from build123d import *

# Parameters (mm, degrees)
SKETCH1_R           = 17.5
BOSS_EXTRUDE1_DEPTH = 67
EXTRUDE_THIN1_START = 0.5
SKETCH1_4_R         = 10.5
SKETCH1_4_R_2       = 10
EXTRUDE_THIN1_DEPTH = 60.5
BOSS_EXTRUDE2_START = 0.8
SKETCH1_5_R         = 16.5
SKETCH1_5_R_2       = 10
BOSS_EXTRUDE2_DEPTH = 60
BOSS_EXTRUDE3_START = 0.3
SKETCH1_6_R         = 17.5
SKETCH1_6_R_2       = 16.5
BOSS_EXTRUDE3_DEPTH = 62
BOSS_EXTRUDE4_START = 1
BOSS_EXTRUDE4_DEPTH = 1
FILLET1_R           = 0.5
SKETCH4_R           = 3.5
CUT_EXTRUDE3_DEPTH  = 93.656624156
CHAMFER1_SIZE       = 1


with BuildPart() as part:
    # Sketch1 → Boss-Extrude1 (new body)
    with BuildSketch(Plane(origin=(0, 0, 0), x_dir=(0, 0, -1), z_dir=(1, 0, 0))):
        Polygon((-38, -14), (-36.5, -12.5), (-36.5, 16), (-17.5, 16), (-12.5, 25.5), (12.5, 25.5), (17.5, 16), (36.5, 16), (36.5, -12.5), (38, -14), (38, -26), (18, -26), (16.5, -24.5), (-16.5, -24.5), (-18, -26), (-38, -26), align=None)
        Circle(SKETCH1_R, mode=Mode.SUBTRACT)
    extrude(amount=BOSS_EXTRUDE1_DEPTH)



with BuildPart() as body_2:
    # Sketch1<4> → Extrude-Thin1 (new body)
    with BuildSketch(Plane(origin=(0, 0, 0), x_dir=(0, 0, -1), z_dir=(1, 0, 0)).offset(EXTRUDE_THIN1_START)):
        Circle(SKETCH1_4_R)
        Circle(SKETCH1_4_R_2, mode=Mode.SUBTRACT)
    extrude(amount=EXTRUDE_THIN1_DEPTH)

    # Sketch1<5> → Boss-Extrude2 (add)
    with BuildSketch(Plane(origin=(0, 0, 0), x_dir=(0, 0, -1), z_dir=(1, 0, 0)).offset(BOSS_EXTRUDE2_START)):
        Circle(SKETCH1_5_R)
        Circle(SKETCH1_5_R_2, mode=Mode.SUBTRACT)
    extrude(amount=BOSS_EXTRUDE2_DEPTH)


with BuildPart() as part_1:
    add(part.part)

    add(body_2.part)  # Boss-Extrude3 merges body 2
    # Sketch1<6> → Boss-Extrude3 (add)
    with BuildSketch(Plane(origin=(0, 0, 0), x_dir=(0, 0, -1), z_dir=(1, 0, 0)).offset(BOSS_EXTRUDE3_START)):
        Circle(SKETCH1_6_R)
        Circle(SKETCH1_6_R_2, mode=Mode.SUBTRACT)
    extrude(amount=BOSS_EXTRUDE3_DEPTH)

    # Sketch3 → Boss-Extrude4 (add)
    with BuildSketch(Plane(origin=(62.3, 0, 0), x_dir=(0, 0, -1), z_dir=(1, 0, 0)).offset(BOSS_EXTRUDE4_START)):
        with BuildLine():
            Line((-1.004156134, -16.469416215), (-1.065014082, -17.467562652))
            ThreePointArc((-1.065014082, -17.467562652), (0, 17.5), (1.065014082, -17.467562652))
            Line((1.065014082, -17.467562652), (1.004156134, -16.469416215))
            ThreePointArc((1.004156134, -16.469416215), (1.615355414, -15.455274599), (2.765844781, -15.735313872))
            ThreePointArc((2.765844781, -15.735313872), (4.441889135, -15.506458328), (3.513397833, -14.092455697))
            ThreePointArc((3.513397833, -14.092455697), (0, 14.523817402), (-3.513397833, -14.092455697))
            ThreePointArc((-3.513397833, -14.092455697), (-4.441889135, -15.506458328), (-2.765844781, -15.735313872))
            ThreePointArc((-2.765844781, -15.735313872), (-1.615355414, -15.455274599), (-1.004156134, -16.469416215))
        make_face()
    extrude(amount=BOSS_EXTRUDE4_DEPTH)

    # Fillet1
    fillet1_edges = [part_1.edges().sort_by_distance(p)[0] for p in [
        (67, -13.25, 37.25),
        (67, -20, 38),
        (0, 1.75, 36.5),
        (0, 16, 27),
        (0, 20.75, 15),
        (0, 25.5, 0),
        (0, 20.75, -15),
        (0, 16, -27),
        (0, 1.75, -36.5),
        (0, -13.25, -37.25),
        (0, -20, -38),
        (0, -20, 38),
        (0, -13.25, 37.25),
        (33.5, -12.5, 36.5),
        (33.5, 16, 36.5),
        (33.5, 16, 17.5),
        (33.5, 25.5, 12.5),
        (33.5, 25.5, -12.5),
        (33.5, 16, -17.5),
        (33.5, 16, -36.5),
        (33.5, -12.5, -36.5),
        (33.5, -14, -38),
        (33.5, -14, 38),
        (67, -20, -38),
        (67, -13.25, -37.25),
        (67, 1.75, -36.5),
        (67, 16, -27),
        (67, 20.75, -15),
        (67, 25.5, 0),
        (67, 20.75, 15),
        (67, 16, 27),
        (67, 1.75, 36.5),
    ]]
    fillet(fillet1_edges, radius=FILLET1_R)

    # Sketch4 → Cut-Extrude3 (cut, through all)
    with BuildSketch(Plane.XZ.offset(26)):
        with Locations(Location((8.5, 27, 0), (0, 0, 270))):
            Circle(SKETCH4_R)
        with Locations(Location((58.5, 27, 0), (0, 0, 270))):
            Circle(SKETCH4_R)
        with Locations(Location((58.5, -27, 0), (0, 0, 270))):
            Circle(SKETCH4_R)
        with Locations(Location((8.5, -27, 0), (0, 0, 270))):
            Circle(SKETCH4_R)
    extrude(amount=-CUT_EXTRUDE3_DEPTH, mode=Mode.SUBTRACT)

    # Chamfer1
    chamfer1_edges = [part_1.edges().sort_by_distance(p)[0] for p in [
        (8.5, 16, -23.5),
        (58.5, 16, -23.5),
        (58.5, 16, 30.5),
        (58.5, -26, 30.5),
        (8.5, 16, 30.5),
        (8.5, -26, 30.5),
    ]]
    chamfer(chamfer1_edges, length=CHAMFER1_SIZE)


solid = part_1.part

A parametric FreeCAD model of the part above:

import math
import FreeCAD as App
import Part
import Sketcher
from FreeCAD import Vector


def edges_at(feature, points):
    """Names of the edges that pass closest to the given points."""
    edges = feature.Shape.Edges
    near = lambda p: min(range(len(edges)), key=lambda i: edges[i].distToShape(Part.Vertex(*p))[0])
    return sorted({f"Edge{near(p) + 1}" for p in points})


def add_polygon(sketch, points):
    """Adds a closed chain of lines whose ends are joined by coincident constraints."""
    first, n = sketch.GeometryCount, len(points)
    for a, b in zip(points, points[1:] + points[:1]):
        sketch.addGeometry(Part.LineSegment(App.Vector(*a, 0), App.Vector(*b, 0)), False)
    for i in range(n):
        sketch.addConstraint(Sketcher.Constraint("Coincident", first + i, 2, first + (i + 1) % n, 1))

doc = App.newDocument("Part")
body = doc.addObject("PartDesign::Body", "Body")

sketch1 = body.newObject("Sketcher::SketchObject", "Sketch")
sketch1.AttachmentSupport = (doc.getObject("YZ_Plane"), [""])
sketch1.MapMode = "FlatFace"
add_polygon(sketch1, [(-12.5, 36.5), (-14, 38), (-26, 38), (-26, 18), (-24.5, 16.5), (-24.5, -16.5), (-26, -18), (-26, -38), (-14, -38), (-12.5, -36.5), (16, -36.5), (16, -17.5), (25.5, -12.5), (25.5, 12.5), (16, 17.5), (16, 36.5)])
sketch1.addGeometry(Part.Circle(Vector(0, 0, 0), Vector(0, 0, 1), 17.5), False)
sketch1.addConstraint([
    Sketcher.Constraint("Horizontal", 1),
    Sketcher.Constraint("Vertical", 2),
    Sketcher.Constraint("Vertical", 4),
    Sketcher.Constraint("Vertical", 6),
    Sketcher.Constraint("Horizontal", 7),
    Sketcher.Constraint("Horizontal", 9),
    Sketcher.Constraint("Vertical", 10),
    Sketcher.Constraint("Vertical", 12),
    Sketcher.Constraint("Vertical", 14),
    Sketcher.Constraint("Horizontal", 15),
    Sketcher.Constraint("Coincident", 16, 3, -1, 1),
    Sketcher.Constraint("Symmetric", 2, 2, 5, 2, -1),
    Sketcher.Constraint("Symmetric", 0, 2, 7, 2, -1),
    Sketcher.Constraint("Symmetric", 10, 2, 13, 2, -1),
    Sketcher.Constraint("Symmetric", 8, 2, 15, 2, -1),
    Sketcher.Constraint("Parallel", 0, 3),
    Sketcher.Constraint("Perpendicular", 3, 5),
    Sketcher.Constraint("Parallel", 5, 8),
    Sketcher.Constraint("Equal", 0, 3),
    Sketcher.Constraint("Equal", 11, 13),
    Sketcher.Constraint("Diameter", 16, 35.0),
    Sketcher.Constraint("DistanceX", 1, 2, 1, 1, 12.0),
    Sketcher.Constraint("DistanceY", 2, 2, 2, 1, 20.0),
    Sketcher.Constraint("DistanceY", 4, 2, 4, 1, 33.0),
    Sketcher.Constraint("DistanceY", 10, 1, 10, 2, 19.0),
    Sketcher.Constraint("DistanceY", 12, 1, 12, 2, 25.0),
    Sketcher.Constraint("DistanceX", 9, 1, 9, 2, 28.5),
    Sketcher.Constraint("DistanceX", 0, 2, -1, 1, 14.0),
    Sketcher.Constraint("DistanceY", -1, 1, 0, 2, 38.0),
    Sketcher.Constraint("DistanceX", 8, 2, 11, 2, 38.0),
])
pad1 = body.newObject("PartDesign::Pad", "Pad")
pad1.Profile = sketch1
pad1.Length = 67
body2 = doc.addObject("PartDesign::Body", "Body001")

sketch2 = body2.newObject("Sketcher::SketchObject", "Sketch001")
sketch2.AttachmentSupport = (doc.getObject("YZ_Plane001"), [""])
sketch2.MapMode = "FlatFace"
sketch2.AttachmentOffset = App.Placement(Vector(0, 0, 0.5), App.Rotation())
sketch2.addGeometry([
    Part.Circle(Vector(0, 0, 0), Vector(0, 0, 1), 10),
    Part.Circle(Vector(0, 0, 0), Vector(0, 0, 1), 10),
], False)
sketch2.addConstraint([
    Sketcher.Constraint("Coincident", 0, 3, -1, 1),
    Sketcher.Constraint("Coincident", 1, 3, -1, 1),
    Sketcher.Constraint("Diameter", 0, 21.0),
    Sketcher.Constraint("Diameter", 1, 20.0),
])
pad2 = body2.newObject("PartDesign::Pad", "Pad001")
pad2.Profile = sketch2
pad2.Length = 60.5

sketch3 = body2.newObject("Sketcher::SketchObject", "Sketch002")
sketch3.AttachmentSupport = (doc.getObject("YZ_Plane001"), [""])
sketch3.MapMode = "FlatFace"
sketch3.AttachmentOffset = App.Placement(Vector(0, 0, 0.8), App.Rotation())
sketch3.addGeometry([
    Part.Circle(Vector(0, 0, 0), Vector(0, 0, 1), 16),
    Part.Circle(Vector(0, 0, 0), Vector(0, 0, 1), 10),
], False)
sketch3.addConstraint([
    Sketcher.Constraint("Coincident", 0, 3, -1, 1),
    Sketcher.Constraint("Coincident", 1, 3, -1, 1),
    Sketcher.Constraint("Diameter", 0, 33.0),
    Sketcher.Constraint("Diameter", 1, 20.0),
])
pad3 = body2.newObject("PartDesign::Pad", "Pad002")
pad3.Profile = sketch3
pad3.Length = 60
body.AllowCompound = True
doc.recompute()

boolean = body.newObject("PartDesign::Boolean", "Boolean")
boolean.Type = "Fuse"
boolean.addObjects([body2])

sketch4 = body.newObject("Sketcher::SketchObject", "Sketch003")
sketch4.AttachmentSupport = (doc.getObject("YZ_Plane"), [""])
sketch4.MapMode = "FlatFace"
sketch4.AttachmentOffset = App.Placement(Vector(0, 0, 0.3), App.Rotation())
sketch4.addGeometry([
    Part.Circle(Vector(0, 0, 0), Vector(0, 0, 1), 18),
    Part.Circle(Vector(0, 0, 0), Vector(0, 0, 1), 16),
], False)
sketch4.addConstraint([
    Sketcher.Constraint("Coincident", 0, 3, -1, 1),
    Sketcher.Constraint("Coincident", 1, 3, -1, 1),
    Sketcher.Constraint("Diameter", 0, 35.0),
    Sketcher.Constraint("Diameter", 1, 33.0),
])
pad4 = body.newObject("PartDesign::Pad", "Pad003")
pad4.Profile = sketch4
pad4.Length = 62

sketch5 = body.newObject("Sketcher::SketchObject", "Sketch004")
sketch5.AttachmentSupport = (doc.getObject("YZ_Plane"), [""])
sketch5.MapMode = "FlatFace"
sketch5.AttachmentOffset = App.Placement(Vector(0, 0, 63.3), App.Rotation())
sketch5.addGeometry([
    Part.LineSegment(Vector(-17.5, 1.1, 0), Vector(-16.5, 1, 0)),
    Part.ArcOfCircle(Part.Circle(Vector(-16.4, 2, 0), Vector(0, 0, 1), 1), math.radians(-95), math.radians(50)),
    Part.ArcOfCircle(Part.Circle(Vector(-15.1, 3.5, 0), Vector(0, 0, 1), 1), math.radians(-1), math.radians(230)),
    Part.ArcOfCircle(Part.Circle(Vector(0, 0, 0), Vector(0, 0, 1), 14.5), math.radians(-166), math.radians(166)),
    Part.ArcOfCircle(Part.Circle(Vector(-15.1, -3.5, 0), Vector(0, 0, 1), 1), math.radians(130), math.radians(361)),
    Part.ArcOfCircle(Part.Circle(Vector(-16.4, -2, 0), Vector(0, 0, 1), 1), math.radians(-50), math.radians(95)),
    Part.LineSegment(Vector(-16.5, -1, 0), Vector(-17.5, -1.1, 0)),
    Part.ArcOfCircle(Part.Circle(Vector(0, 0, 0), Vector(0, 0, 1), 17.5), math.radians(-177), math.radians(177)),
], False)
sketch5.addConstraint([
    Sketcher.Constraint("Coincident", 0, 2, 1, 1),
    Sketcher.Constraint("Tangent", 1, 2, 2, 2),
    Sketcher.Constraint("Coincident", 2, 1, 3, 2),
    Sketcher.Constraint("Coincident", 3, 1, 4, 2),
    Sketcher.Constraint("Tangent", 4, 1, 5, 1),
    Sketcher.Constraint("Coincident", 5, 2, 6, 1),
    Sketcher.Constraint("Coincident", 6, 2, 7, 1),
    Sketcher.Constraint("Coincident", 7, 2, 0, 1),
    Sketcher.Constraint("Coincident", 3, 3, -1, 1),
    Sketcher.Constraint("Coincident", 7, 3, -1, 1),
    Sketcher.Constraint("Equal", 1, 2),
    Sketcher.Constraint("Equal", 2, 4),
    Sketcher.Constraint("Equal", 4, 5),
    Sketcher.Constraint("Symmetric", 2, 3, 4, 3, -1),
    Sketcher.Constraint("Symmetric", 0, 2, 5, 2, -1),
    Sketcher.Constraint("Vertical", 6, 2, 7, 2),
    Sketcher.Constraint("Radius", 1, 1.0),
    Sketcher.Constraint("Radius", 7, 17.5),
    Sketcher.Constraint("Distance", 0, 1.0),
    Sketcher.Constraint("DistanceY", -1, 1, 1, 3, 2.0),
    Sketcher.Constraint("DistanceY", 4, 1, 0, 2, 3.770001),
    Sketcher.Constraint("Radius", 3, 14.523817),
    Sketcher.Constraint("DistanceX", 1, 3, -1, 1, 16.378339),
    Sketcher.Constraint("DistanceY", 6, 2, 0, 2, 2.06917),
])
pad5 = body.newObject("PartDesign::Pad", "Pad004")
pad5.Profile = sketch5
pad5.Length = 1
doc.recompute()

fillet = body.newObject("PartDesign::Fillet", "Fillet")
fillet.Base = (pad5, edges_at(pad5, [
    (67, -13.25, 37.25),
    (67, -20, 38),
    (0, 1.75, 36.5),
    (0, 16, 27),
    (0, 20.75, 15),
    (0, 25.5, 0),
    (0, 20.75, -15),
    (0, 16, -27),
    (0, 1.75, -36.5),
    (0, -13.25, -37.25),
    (0, -20, -38),
    (0, -20, 38),
    (0, -13.25, 37.25),
    (33.5, -12.5, 36.5),
    (33.5, 16, 36.5),
    (33.5, 16, 17.5),
    (33.5, 25.5, 12.5),
    (33.5, 25.5, -12.5),
    (33.5, 16, -17.5),
    (33.5, 16, -36.5),
    (33.5, -12.5, -36.5),
    (33.5, -14, -38),
    (33.5, -14, 38),
    (67, -20, -38),
    (67, -13.25, -37.25),
    (67, 1.75, -36.5),
    (67, 16, -27),
    (67, 20.75, -15),
    (67, 25.5, 0),
    (67, 20.75, 15),
    (67, 16, 27),
    (67, 1.75, 36.5),
]))
fillet.Radius = 0.5

sketch6 = body.newObject("Sketcher::SketchObject", "Sketch005")
sketch6.AttachmentSupport = (doc.getObject("XZ_Plane"), [""])
sketch6.MapMode = "FlatFace"
sketch6.AttachmentOffset = App.Placement(Vector(0, 0, 26), App.Rotation())
sketch6.addGeometry([
    Part.Circle(Vector(8.5, 27, 0), Vector(0, 0, 1), 3.5),
    Part.Circle(Vector(58.5, 27, 0), Vector(0, 0, 1), 3.5),
    Part.Circle(Vector(58.5, -27, 0), Vector(0, 0, 1), 3.5),
    Part.Circle(Vector(8.5, -27, 0), Vector(0, 0, 1), 3.5),
], False)
sketch6.addConstraint([
    Sketcher.Constraint("Equal", 0, 1),
    Sketcher.Constraint("Equal", 1, 2),
    Sketcher.Constraint("Equal", 2, 3),
    Sketcher.Constraint("Symmetric", 1, 3, 2, 3, -1),
    Sketcher.Constraint("Symmetric", 0, 3, 3, 3, -1),
    Sketcher.Constraint("Horizontal", 0, 3, 1, 3),
    Sketcher.Constraint("Diameter", 0, 7.0),
    Sketcher.Constraint("DistanceY", -1, 1, 0, 3, 27.0),
    Sketcher.Constraint("DistanceX", 0, 3, 1, 3, 50.0),
    Sketcher.Constraint("DistanceX", -1, 1, 0, 3, 8.5),
])
pocket1 = body.newObject("PartDesign::Pocket", "Pocket")
pocket1.Profile = sketch6
pocket1.Type = "ThroughAll"
doc.recompute()

chamfer = body.newObject("PartDesign::Chamfer", "Chamfer")
chamfer.Base = (pocket1, edges_at(pocket1, [
    (8.5, 16, -23.5),
    (58.5, 16, -23.5),
    (58.5, 16, 30.5),
    (58.5, -26, 30.5),
    (8.5, 16, 30.5),
    (8.5, -26, 30.5),
]))
chamfer.Size = 1

doc.recompute()
